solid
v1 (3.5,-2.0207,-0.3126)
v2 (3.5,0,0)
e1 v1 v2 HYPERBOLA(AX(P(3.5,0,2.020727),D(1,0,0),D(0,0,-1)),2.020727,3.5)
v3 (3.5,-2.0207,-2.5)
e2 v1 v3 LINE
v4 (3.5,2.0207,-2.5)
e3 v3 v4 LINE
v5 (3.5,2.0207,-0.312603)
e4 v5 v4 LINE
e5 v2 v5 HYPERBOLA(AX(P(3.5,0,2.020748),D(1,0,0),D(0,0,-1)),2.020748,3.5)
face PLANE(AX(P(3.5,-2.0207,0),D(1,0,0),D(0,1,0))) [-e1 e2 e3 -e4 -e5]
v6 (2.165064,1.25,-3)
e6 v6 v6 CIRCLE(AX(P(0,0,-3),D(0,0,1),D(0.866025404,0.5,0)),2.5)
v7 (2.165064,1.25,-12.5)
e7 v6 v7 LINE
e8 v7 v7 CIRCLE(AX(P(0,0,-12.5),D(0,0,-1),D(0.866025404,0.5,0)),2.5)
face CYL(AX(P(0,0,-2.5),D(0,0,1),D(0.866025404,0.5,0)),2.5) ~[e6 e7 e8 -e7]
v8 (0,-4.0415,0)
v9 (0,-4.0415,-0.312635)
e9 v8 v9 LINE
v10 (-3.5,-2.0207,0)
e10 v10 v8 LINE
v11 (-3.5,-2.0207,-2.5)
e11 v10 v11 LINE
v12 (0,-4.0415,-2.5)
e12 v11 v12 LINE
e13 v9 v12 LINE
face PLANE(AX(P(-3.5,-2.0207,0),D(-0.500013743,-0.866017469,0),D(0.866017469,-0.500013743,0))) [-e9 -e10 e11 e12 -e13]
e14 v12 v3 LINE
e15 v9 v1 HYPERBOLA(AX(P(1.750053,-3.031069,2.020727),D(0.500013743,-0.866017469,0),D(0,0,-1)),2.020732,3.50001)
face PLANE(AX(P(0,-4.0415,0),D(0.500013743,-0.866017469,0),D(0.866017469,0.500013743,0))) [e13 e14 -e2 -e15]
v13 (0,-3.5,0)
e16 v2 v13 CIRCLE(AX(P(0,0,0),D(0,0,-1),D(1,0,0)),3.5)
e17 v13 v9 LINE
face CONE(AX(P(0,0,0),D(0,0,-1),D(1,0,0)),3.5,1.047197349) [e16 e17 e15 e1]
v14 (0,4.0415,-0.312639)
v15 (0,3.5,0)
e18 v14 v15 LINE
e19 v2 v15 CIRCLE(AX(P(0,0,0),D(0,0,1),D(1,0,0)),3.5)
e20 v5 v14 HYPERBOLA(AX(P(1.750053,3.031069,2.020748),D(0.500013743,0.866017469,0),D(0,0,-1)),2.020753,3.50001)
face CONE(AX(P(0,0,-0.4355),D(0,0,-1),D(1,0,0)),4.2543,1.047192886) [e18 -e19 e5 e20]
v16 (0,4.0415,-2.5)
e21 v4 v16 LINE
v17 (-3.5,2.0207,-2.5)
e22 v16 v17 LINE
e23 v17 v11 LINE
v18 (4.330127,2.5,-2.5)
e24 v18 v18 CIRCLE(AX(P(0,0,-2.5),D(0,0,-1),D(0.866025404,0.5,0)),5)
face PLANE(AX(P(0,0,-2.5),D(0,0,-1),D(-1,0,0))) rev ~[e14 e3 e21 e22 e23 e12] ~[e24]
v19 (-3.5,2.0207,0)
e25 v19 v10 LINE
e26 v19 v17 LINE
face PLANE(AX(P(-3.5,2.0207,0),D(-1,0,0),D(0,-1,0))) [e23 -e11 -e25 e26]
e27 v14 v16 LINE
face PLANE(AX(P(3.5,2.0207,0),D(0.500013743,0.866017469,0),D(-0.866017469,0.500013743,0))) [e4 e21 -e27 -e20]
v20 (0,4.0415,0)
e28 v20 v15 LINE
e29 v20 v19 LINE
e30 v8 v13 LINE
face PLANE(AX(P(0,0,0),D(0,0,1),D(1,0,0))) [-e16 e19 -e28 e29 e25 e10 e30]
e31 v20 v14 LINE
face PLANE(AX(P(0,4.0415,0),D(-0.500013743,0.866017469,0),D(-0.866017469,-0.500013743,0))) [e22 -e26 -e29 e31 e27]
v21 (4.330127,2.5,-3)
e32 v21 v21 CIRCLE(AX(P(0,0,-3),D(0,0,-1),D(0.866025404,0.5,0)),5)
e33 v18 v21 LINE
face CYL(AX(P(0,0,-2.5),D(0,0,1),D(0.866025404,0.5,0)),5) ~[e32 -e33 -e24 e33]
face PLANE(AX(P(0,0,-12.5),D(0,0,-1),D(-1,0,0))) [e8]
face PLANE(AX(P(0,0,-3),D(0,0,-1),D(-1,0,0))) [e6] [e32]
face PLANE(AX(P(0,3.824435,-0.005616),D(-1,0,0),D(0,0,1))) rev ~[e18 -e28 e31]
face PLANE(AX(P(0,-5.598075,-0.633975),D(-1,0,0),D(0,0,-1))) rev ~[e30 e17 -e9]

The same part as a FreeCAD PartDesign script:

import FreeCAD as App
import Part
import Sketcher

V = App.Vector
Q = App.Units.Quantity


def add_polygon(sketch, points):
    """Adds a closed chain of lines whose ends are joined by coincident constraints."""
    first, n = sketch.GeometryCount, len(points)
    for a, b in zip(points, points[1:] + points[:1]):
        sketch.addGeometry(Part.LineSegment(App.Vector(*a, 0), App.Vector(*b, 0)), False)
    for i in range(n):
        sketch.addConstraint(Sketcher.Constraint("Coincident", first + i, 2, first + (i + 1) % n, 1))

doc = App.newDocument("Part")
params = doc.addObject("Spreadsheet::Sheet", "Params")
for row, (alias, value) in enumerate([
    ("pad1_length", "2.5 mm"),
    ("sketch2_diameter", "10 mm"),
    ("pad2_length", "0.5 mm"),
    ("sketch3_diameter", "5 mm"),
    ("pad3_length", "10 mm"),
    ("sketch4_height", "2 mm"),
    ("groove_angle", "90 deg"),
    ("sketch5_width", "1.09 mm"),
    ("groove2_angle", "90 deg"),
], start=1):
    params.set(f"A{row}", alias)
    params.set(f"B{row}", "=" + value)
    params.setAlias(f"B{row}", alias)

body = doc.addObject("PartDesign::Body", "Body")

sketch1 = body.newObject("Sketcher::SketchObject", "Sketch")
sketch1.AttachmentSupport = (doc.getObject("XY_Plane"), [""])
sketch1.MapMode = "FlatFace"
add_polygon(sketch1, [(-3.5, -2.0207), (0, -4.0415), (3.5, -2.0207), (3.5, 2.0207), (0, 4.0415), (-3.5, 2.0207)])
sketch1.addConstraint(Sketcher.Constraint("Vertical", 2))
sketch1.addConstraint(Sketcher.Constraint("Vertical", 5))
sketch1.addConstraint(Sketcher.Constraint("Symmetric", 0, 2, 3, 2, -1, 1))
sketch1.addConstraint(Sketcher.Constraint("Symmetric", 1, 2, 4, 2, -1, 1))
sketch1.addConstraint(Sketcher.Constraint("PointOnObject", 0, 2, -2))
sketch1.addConstraint(Sketcher.Constraint("Parallel", 0, 3))
sketch1.addConstraint(Sketcher.Constraint("Horizontal", 2, 2, 4, 2))
sketch1.addConstraint(Sketcher.Constraint("Angle", 0, Q("-30.001 deg")))
sketch1.addConstraint(Sketcher.Constraint("DistanceX", 4, 2, 2, 2, 7.0))
sketch1.addConstraint(Sketcher.Constraint("DistanceY", 2, 1, 2, 2, 4.0414))
pad1 = body.newObject("PartDesign::Pad", "Pad")
pad1.Profile = sketch1
pad1.setExpression("Length", "Params.pad1_length")
pad1.Reversed = True

sketch2 = body.newObject("Sketcher::SketchObject", "Sketch001")
sketch2.AttachmentSupport = (doc.getObject("XY_Plane"), [""])
sketch2.MapMode = "FlatFace"
sketch2.AttachmentOffset = App.Placement(V(0, 0, -2.5), App.Rotation())
sketch2.addGeometry(Part.Circle(V(0, 0, 0), V(0, 0, 1), 5), False)
sketch2.addConstraint(Sketcher.Constraint("Coincident", 0, 3, -1, 1))
sketch2.addConstraint(Sketcher.Constraint("Diameter", 0, 10.0))
sketch2.setExpression("Constraints[1]", "Params.sketch2_diameter")
pad2 = body.newObject("PartDesign::Pad", "Pad001")
pad2.Profile = sketch2
pad2.setExpression("Length", "Params.pad2_length")
pad2.Reversed = True

sketch3 = body.newObject("Sketcher::SketchObject", "Sketch002")
sketch3.AttachmentSupport = (doc.getObject("XY_Plane"), [""])
sketch3.MapMode = "FlatFace"
sketch3.AttachmentOffset = App.Placement(V(0, 0, -2.5), App.Rotation())
sketch3.addGeometry(Part.Circle(V(0, 0, 0), V(0, 0, 1), 2.5), False)
sketch3.addConstraint(Sketcher.Constraint("Coincident", 0, 3, -1, 1))
sketch3.addConstraint(Sketcher.Constraint("Diameter", 0, 5.0))
sketch3.setExpression("Constraints[1]", "Params.sketch3_diameter")
pad3 = body.newObject("PartDesign::Pad", "Pad002")
pad3.Profile = sketch3
pad3.setExpression("Length", "Params.pad3_length")
pad3.Reversed = True

sketch4 = body.newObject("Sketcher::SketchObject", "Sketch003")
sketch4.AttachmentSupport = (doc.getObject("XZ_Plane"), [""])
sketch4.MapMode = "FlatFace"
add_polygon(sketch4, [(6.9641, -2), (6.9641, 0), (3.5, 0)])
sketch4.addConstraint(Sketcher.Constraint("Vertical", 0))
sketch4.addConstraint(Sketcher.Constraint("Horizontal", 1))
sketch4.addConstraint(Sketcher.Constraint("PointOnObject", 0, 2, -1))
sketch4.addConstraint(Sketcher.Constraint("DistanceY", 0, 1, 0, 2, 2.0))
sketch4.addConstraint(Sketcher.Constraint("Angle", 2, Q("-30 deg")))
sketch4.addConstraint(Sketcher.Constraint("DistanceX", -1, 1, 1, 2, 3.5))
sketch4.setExpression("Constraints[6]", "Params.sketch4_height")
groove = body.newObject("PartDesign::Groove", "Groove")
groove.Profile = sketch4
groove.ReferenceAxis = (sketch4, ["V_Axis"])
groove.setExpression("Angle", "Params.groove_angle")
groove.Reversed = True

sketch5 = body.newObject("Sketcher::SketchObject", "Sketch004")
sketch5.AttachmentSupport = (doc.getObject("XZ_Plane"), [""])
sketch5.MapMode = "FlatFace"
add_polygon(sketch5, [(4.2543, 0.1939), (3.1642, 0.1939), (3.5, 0), (4.2543, -0.4355)])
sketch5.addConstraint(Sketcher.Constraint("Horizontal", 0))
sketch5.addConstraint(Sketcher.Constraint("Vertical", 3))
sketch5.addConstraint(Sketcher.Constraint("PointOnObject", 1, 2, -1))
sketch5.addConstraint(Sketcher.Constraint("Parallel", 1, 2))
sketch5.addConstraint(Sketcher.Constraint("Angle", 2, Q("-30.0003 deg")))
sketch5.addConstraint(Sketcher.Constraint("DistanceX", 0, 2, 0, 1, 1.09))
sketch5.addConstraint(Sketcher.Constraint("DistanceX", -1, 1, 1, 2, 3.5))
sketch5.addConstraint(Sketcher.Constraint("Distance", 2, 0.871))
sketch5.setExpression("Constraints[9]", "Params.sketch5_width")
groove2 = body.newObject("PartDesign::Groove", "Groove001")
groove2.Profile = sketch5
groove2.ReferenceAxis = (sketch5, ["V_Axis"])
groove2.setExpression("Angle", "Params.groove2_angle")

doc.recompute()
